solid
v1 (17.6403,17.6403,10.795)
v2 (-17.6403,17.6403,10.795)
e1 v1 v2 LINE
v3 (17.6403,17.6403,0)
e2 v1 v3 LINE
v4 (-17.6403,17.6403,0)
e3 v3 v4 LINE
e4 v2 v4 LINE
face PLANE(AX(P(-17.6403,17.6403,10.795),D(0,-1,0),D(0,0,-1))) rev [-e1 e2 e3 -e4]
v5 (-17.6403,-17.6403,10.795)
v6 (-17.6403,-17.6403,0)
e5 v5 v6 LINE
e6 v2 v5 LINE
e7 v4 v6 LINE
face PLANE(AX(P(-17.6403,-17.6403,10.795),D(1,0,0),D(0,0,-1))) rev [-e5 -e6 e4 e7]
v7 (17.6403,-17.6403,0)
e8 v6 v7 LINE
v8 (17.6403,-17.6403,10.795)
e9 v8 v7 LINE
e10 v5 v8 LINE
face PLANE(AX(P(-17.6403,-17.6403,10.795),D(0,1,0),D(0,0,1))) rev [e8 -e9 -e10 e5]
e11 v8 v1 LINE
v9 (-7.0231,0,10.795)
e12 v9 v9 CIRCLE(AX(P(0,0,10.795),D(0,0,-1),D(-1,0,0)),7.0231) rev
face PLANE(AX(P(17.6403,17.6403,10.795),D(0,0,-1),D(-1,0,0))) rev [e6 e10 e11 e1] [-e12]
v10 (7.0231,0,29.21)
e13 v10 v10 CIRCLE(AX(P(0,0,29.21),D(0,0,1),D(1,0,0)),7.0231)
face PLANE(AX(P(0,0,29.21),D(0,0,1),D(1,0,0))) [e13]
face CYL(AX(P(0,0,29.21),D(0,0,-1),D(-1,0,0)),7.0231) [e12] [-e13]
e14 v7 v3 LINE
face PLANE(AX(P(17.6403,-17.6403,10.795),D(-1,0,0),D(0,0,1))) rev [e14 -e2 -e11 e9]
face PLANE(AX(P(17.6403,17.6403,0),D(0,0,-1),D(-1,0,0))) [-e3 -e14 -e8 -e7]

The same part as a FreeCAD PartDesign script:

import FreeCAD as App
import Part
import Sketcher

V = App.Vector
Q = App.Units.Quantity

doc = App.newDocument("Part")
body = doc.addObject("PartDesign::Body", "Body")

sketch1 = body.newObject("Sketcher::SketchObject", "Sketch")
sketch1.AttachmentSupport = (doc.getObject("XY_Plane"), [""])
sketch1.MapMode = "FlatFace"
sketch1.addGeometry([
    Part.LineSegment(V(-18, 18, 0), V(-18, -18, 0)),
    Part.LineSegment(V(-18, -18, 0), V(18, -18, 0)),
    Part.LineSegment(V(18, -18, 0), V(18, 18, 0)),
    Part.LineSegment(V(18, 18, 0), V(-18, 18, 0)),
], False)
sketch1.addConstraint([
    Sketcher.Constraint("Coincident", 0, 2, 1, 1),
    Sketcher.Constraint("Coincident", 1, 2, 2, 1),
    Sketcher.Constraint("Coincident", 2, 2, 3, 1),
    Sketcher.Constraint("Coincident", 3, 2, 0, 1),
    Sketcher.Constraint("Vertical", 0),
    Sketcher.Constraint("Horizontal", 1),
    Sketcher.Constraint("Vertical", 2),
    Sketcher.Constraint("Horizontal", 3),
    Sketcher.Constraint("Symmetric", 0, 2, 2, 2, -1, 1),
    Sketcher.Constraint("Equal", 3, 0),
    Sketcher.Constraint("DistanceX", 1, 1, 1, 2, Q("1.389 in")),
])
pad1 = body.newObject("PartDesign::Pad", "Pad")
pad1.Profile = sketch1
pad1.Length = Q("0.425 in")

sketch2 = body.newObject("Sketcher::SketchObject", "Sketch001")
sketch2.AttachmentSupport = (doc.getObject("XY_Plane"), [""])
sketch2.MapMode = "FlatFace"
sketch2.AttachmentOffset = App.Placement(V(0, 0, 0.425 * 25.4), App.Rotation())
sketch2.addGeometry(Part.Circle(V(0, 0, 0), V(0, 0, 1), 7), False)
sketch2.addConstraint([
    Sketcher.Constraint("Coincident", 0, 3, -1, 1),
    Sketcher.Constraint("Diameter", 0, Q("0.553 in")),
])
pad2 = body.newObject("PartDesign::Pad", "Pad001")
pad2.Profile = sketch2
pad2.Length = Q("0.725 in")

doc.recompute()
